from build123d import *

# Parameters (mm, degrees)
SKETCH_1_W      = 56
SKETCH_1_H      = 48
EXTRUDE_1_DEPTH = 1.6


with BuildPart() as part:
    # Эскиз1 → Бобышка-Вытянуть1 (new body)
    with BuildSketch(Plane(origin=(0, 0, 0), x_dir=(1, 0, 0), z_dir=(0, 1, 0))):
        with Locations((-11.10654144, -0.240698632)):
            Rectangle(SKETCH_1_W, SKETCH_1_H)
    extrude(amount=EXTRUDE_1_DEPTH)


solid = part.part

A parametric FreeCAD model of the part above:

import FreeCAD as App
import Part
import Sketcher
from FreeCAD import Vector


def add_polygon(sketch, points):
    """Adds a closed chain of lines whose ends are joined by coincident constraints."""
    first, n = sketch.GeometryCount, len(points)
    for a, b in zip(points, points[1:] + points[:1]):
        sketch.addGeometry(Part.LineSegment(App.Vector(*a, 0), App.Vector(*b, 0)), False)
    for i in range(n):
        sketch.addConstraint(Sketcher.Constraint("Coincident", first + i, 2, first + (i + 1) % n, 1))

doc = App.newDocument("Part")
body = doc.addObject("PartDesign::Body", "Body")

# Sketch on XZ plane
sketch1 = body.newObject("Sketcher::SketchObject", "Sketch")
sketch1.AttachmentSupport = (doc.getObject("XZ_Plane"), [""])
sketch1.MapMode = "FlatFace"
add_polygon(sketch1, [(-39.106541, -23.759301), (-39.106541, 24.240699), (16.893459, 24.240699), (16.893459, -23.759301)])  # lines 0-3
sketch1.addConstraint(Sketcher.Constraint("Vertical", 0))
sketch1.addConstraint(Sketcher.Constraint("Horizontal", 1))
sketch1.addConstraint(Sketcher.Constraint("Vertical", 2))
sketch1.addConstraint(Sketcher.Constraint("Horizontal", 3))
sketch1.addConstraint(Sketcher.Constraint("DistanceX", 1, 1, 1, 2, 56.0))
sketch1.addConstraint(Sketcher.Constraint("DistanceY", 0, 1, 0, 2, 48.0))
sketch1.addConstraint(Sketcher.Constraint("DistanceY", -1, 1, 0, 2, 24.240699))
sketch1.addConstraint(Sketcher.Constraint("DistanceX", 0, 2, -1, 1, 39.106541))
pad1 = body.newObject("PartDesign::Pad", "Pad")
pad1.Profile = sketch1
pad1.Length = 1.6
pad1.Reversed = True

doc.recompute()
